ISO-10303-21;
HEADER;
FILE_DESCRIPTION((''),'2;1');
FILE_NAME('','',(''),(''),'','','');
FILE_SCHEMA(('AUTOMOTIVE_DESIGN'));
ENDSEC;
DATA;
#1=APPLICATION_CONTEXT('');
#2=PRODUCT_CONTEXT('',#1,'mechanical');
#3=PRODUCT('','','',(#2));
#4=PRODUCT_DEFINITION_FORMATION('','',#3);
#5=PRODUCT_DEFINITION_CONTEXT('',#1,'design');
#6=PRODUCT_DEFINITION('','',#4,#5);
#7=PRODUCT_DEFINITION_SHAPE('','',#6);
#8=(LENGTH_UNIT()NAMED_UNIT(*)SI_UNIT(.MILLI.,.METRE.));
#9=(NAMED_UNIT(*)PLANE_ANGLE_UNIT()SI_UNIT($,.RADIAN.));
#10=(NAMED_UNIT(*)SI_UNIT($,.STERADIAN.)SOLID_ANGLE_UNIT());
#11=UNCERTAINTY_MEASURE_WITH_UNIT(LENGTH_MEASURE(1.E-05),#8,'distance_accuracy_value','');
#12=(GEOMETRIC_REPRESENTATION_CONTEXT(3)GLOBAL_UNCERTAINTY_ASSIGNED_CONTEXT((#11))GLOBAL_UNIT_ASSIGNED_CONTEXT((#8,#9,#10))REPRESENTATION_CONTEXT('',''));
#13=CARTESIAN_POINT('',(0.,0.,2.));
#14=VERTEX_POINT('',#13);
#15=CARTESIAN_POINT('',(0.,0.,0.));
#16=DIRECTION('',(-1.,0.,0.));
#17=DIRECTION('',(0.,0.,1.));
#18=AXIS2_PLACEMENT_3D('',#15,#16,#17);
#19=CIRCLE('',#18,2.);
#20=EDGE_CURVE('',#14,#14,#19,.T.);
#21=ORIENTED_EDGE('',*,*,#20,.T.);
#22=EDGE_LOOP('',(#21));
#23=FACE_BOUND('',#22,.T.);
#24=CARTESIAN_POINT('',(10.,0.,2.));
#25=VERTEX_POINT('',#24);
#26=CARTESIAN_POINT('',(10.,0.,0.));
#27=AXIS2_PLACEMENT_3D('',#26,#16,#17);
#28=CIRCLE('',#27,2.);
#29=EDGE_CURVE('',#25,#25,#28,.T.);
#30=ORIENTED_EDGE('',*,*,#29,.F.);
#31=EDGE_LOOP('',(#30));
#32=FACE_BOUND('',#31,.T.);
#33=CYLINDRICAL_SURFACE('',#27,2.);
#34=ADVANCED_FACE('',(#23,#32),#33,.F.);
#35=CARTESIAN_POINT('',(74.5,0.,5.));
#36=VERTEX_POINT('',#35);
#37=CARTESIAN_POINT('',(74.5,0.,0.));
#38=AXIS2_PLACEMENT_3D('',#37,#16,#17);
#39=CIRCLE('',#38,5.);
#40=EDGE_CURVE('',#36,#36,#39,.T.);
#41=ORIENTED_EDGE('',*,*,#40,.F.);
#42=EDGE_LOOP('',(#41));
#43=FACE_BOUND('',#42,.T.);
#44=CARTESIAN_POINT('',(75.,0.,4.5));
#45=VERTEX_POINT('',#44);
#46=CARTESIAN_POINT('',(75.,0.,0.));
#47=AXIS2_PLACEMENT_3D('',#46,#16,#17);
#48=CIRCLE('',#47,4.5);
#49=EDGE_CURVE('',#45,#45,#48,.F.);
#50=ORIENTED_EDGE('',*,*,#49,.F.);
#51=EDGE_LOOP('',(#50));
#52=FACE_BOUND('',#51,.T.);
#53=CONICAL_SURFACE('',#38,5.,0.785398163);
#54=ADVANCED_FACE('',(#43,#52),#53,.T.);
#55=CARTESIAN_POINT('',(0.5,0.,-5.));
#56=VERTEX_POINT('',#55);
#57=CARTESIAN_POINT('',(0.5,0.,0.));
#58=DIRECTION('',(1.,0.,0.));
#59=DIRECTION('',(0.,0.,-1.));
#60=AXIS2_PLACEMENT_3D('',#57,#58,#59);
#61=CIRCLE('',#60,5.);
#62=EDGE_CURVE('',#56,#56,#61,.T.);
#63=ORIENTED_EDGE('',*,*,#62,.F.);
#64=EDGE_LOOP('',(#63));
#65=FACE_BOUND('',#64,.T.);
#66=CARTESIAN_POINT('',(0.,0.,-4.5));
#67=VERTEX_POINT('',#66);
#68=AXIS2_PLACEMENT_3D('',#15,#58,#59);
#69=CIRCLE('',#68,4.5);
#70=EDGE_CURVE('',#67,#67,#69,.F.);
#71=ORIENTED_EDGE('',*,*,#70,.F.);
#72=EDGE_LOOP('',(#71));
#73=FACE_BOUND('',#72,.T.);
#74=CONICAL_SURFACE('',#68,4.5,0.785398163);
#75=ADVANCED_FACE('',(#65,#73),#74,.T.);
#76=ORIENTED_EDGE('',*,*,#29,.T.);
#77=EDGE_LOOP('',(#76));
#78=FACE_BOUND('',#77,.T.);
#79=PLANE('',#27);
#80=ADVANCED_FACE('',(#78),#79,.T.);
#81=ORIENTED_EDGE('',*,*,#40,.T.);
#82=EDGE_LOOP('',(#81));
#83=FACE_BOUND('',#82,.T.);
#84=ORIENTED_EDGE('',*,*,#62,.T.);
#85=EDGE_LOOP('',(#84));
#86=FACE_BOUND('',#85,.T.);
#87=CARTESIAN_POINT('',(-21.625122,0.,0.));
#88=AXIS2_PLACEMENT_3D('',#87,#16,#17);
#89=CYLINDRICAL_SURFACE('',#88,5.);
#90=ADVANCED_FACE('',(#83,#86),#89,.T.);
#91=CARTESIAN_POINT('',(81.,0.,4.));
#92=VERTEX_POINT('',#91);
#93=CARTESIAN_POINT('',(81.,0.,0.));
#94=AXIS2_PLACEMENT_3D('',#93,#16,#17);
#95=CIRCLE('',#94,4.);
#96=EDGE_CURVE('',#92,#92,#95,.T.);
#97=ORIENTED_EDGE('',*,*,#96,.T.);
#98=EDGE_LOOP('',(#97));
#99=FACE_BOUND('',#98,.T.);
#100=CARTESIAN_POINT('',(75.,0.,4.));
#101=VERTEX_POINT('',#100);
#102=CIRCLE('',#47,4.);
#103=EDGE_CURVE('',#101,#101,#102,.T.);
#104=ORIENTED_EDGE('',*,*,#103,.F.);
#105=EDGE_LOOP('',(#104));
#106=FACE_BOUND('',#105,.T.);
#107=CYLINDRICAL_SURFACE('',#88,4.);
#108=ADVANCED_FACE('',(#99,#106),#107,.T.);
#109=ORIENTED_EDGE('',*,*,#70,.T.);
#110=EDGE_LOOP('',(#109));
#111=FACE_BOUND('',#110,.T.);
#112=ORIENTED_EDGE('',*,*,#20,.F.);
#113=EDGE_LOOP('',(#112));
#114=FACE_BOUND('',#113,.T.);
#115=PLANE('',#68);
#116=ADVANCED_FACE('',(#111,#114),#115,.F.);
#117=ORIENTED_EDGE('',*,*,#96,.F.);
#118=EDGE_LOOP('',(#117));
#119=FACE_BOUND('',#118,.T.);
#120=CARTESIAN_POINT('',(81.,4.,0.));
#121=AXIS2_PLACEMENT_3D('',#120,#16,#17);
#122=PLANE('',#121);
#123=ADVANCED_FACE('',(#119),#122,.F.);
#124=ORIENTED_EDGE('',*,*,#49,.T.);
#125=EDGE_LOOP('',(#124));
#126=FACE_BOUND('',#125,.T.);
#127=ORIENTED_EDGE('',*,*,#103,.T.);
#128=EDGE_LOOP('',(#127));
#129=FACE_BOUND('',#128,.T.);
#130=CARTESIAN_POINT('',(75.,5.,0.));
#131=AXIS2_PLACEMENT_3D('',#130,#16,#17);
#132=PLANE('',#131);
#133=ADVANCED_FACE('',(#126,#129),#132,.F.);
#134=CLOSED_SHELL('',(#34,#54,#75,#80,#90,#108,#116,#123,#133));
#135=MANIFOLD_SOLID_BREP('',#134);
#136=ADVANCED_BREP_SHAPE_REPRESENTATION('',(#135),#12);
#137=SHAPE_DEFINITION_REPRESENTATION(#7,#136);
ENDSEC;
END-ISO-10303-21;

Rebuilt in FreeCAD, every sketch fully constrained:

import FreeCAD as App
import Part
import Sketcher

V = App.Vector


def edges_at(feature, points):
    """Names of the edges that pass closest to the given points."""
    edges = feature.Shape.Edges
    near = lambda p: min(range(len(edges)), key=lambda i: edges[i].distToShape(Part.Vertex(*p))[0])
    return sorted({f"Edge{near(p) + 1}" for p in points})


def add_polygon(sketch, points):
    """Adds a closed chain of lines whose ends are joined by coincident constraints."""
    first, n = sketch.GeometryCount, len(points)
    for a, b in zip(points, points[1:] + points[:1]):
        sketch.addGeometry(Part.LineSegment(App.Vector(*a, 0), App.Vector(*b, 0)), False)
    for i in range(n):
        sketch.addConstraint(Sketcher.Constraint("Coincident", first + i, 2, first + (i + 1) % n, 1))

doc = App.newDocument("Part")
body = doc.addObject("PartDesign::Body", "Body")

# Sketch on XY plane
sketch1 = body.newObject("Sketcher::SketchObject", "Sketch")
sketch1.AttachmentSupport = (doc.getObject("XY_Plane"), [""])
sketch1.MapMode = "FlatFace"
add_polygon(sketch1, [(0, 5), (0, 0), (81, 0), (81, 4), (75, 4), (75, 5)])  # lines 0-5
sketch1.addConstraint([
    Sketcher.Constraint("Vertical", 0),
    Sketcher.Constraint("Horizontal", 1),
    Sketcher.Constraint("Vertical", 2),
    Sketcher.Constraint("Horizontal", 3),
    Sketcher.Constraint("Vertical", 4),
    Sketcher.Constraint("Horizontal", 5),
    Sketcher.Constraint("Coincident", 0, 2, -1, 1),
    Sketcher.Constraint("DistanceX", 1, 1, 1, 2, 81.0),
    Sketcher.Constraint("DistanceX", 3, 2, 3, 1, 6.0),
    Sketcher.Constraint("DistanceY", 0, 2, 0, 1, 5.0),
    Sketcher.Constraint("DistanceY", 2, 1, 2, 2, 4.0),
])
revolution = body.newObject("PartDesign::Revolution", "Revolution")
revolution.Profile = sketch1
revolution.ReferenceAxis = (sketch1, ["H_Axis"])
revolution.Angle = 360
doc.recompute()

chamfer = body.newObject("PartDesign::Chamfer", "Chamfer")
chamfer.Base = (revolution, edges_at(revolution, [(75, 0, -5), (0, 0, -5)]))
chamfer.Size = 0.5

# Sketch on YZ plane
sketch2 = body.newObject("Sketcher::SketchObject", "Sketch001")
sketch2.AttachmentSupport = (doc.getObject("YZ_Plane"), [""])
sketch2.MapMode = "FlatFace"
sketch2.addGeometry(Part.Circle(V(0, 0, 0), V(0, 0, 1), 2), False)
sketch2.addConstraint([
    Sketcher.Constraint("Coincident", 0, 3, -1, 1),
    Sketcher.Constraint("Diameter", 0, 4.0),
])
pocket1 = body.newObject("PartDesign::Pocket", "Pocket")
pocket1.Profile = sketch2
pocket1.Length = 10
pocket1.Reversed = True

doc.recompute()
